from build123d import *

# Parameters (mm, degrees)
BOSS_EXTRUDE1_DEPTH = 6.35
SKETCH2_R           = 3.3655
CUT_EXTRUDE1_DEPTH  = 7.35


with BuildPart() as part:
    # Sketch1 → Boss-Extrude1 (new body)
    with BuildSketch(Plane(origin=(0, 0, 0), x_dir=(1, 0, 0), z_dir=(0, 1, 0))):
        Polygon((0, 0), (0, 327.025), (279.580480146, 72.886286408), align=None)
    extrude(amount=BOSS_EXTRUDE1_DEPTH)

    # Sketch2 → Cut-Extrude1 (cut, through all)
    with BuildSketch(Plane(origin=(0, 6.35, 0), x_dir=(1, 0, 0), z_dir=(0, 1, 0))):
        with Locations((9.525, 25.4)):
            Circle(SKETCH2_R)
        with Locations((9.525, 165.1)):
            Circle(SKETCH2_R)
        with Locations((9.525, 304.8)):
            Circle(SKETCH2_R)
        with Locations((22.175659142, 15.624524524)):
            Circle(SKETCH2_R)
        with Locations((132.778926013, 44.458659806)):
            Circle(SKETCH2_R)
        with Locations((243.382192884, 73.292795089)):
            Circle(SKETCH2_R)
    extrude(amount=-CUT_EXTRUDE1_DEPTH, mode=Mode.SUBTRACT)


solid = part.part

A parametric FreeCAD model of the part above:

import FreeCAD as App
import Part
import Sketcher

V = App.Vector
Q = App.Units.Quantity

doc = App.newDocument("Part")
body = doc.addObject("PartDesign::Body", "Body")

# Sketch on XZ plane
sketch1 = doc.addObject("Sketcher::SketchObject", "Sketch")
body.addObject(sketch1)
sketch1.AttachmentSupport = (doc.XZ_Plane, [""])
sketch1.MapMode = "FlatFace"
sketch1.addGeometry([
    Part.LineSegment(V(0, -327, 0), V(0, 0, 0)),
    Part.LineSegment(V(0, 0, 0), V(280, -73, 0)),
    Part.LineSegment(V(280, -73, 0), V(0, -327, 0)),
], False)
sketch1.addConstraint([
    Sketcher.Constraint("Coincident", 0, 2, 1, 1),
    Sketcher.Constraint("Coincident", 1, 2, 2, 1),
    Sketcher.Constraint("Coincident", 2, 2, 0, 1),
    Sketcher.Constraint("Vertical", 0),
    Sketcher.Constraint("Coincident", 0, 2, -1, 1),
    Sketcher.Constraint("DistanceY", 0, 1, 0, 2, Q("12.875 in")),
    Sketcher.Constraint("Distance", 1, Q("11.375 in")),
    Sketcher.Constraint("Distance", 2, Q("14.875 in")),
])
pad1 = doc.addObject("PartDesign::Pad", "Pad")
body.addObject(pad1)
pad1.Profile = sketch1
pad1.Length = Q("0.25 in")
pad1.Reversed = True

# Sketch on XZ plane
sketch2 = doc.addObject("Sketcher::SketchObject", "Sketch001")
body.addObject(sketch2)
sketch2.AttachmentSupport = (doc.XZ_Plane, [""])
sketch2.MapMode = "FlatFace"
sketch2.AttachmentOffset = App.Placement(V(0, 0, -0.25 * 25.4), App.Rotation())
sketch2.addGeometry([
    Part.Circle(V(9.5, -25.4, 0), V(0, 0, 1), 3.4),  # 0
    Part.Circle(V(9.5, -165.1, 0), V(0, 0, 1), 3.4),  # 1
    Part.Circle(V(9.5, -304.8, 0), V(0, 0, 1), 3.4),  # 2
    Part.Circle(V(22.2, -15.6, 0), V(0, 0, 1), 3.4),  # 3
    Part.Circle(V(132.8, -44.5, 0), V(0, 0, 1), 3.4),  # 4
    Part.Circle(V(243.4, -73.3, 0), V(0, 0, 1), 3.4),  # 5
], False)
sketch2.addConstraint([
    Sketcher.Constraint("Equal", 0, 1),
    Sketcher.Constraint("Equal", 1, 2),
    Sketcher.Constraint("Equal", 2, 3),
    Sketcher.Constraint("Equal", 3, 4),
    Sketcher.Constraint("Equal", 4, 5),
    Sketcher.Constraint("Vertical", 0, 3, 1, 3),
    Sketcher.Constraint("Vertical", 1, 3, 2, 3),
    Sketcher.Constraint("Diameter", 0, Q("0.265 in")),
    Sketcher.Constraint("DistanceY", 0, 3, -1, 1, Q("1 in")),
    Sketcher.Constraint("DistanceY", 2, 3, -1, 1, Q("12 in")),
    Sketcher.Constraint("DistanceY", 1, 3, -1, 1, Q("6.5 in")),
    Sketcher.Constraint("DistanceX", -1, 1, 0, 3, Q("0.375 in")),
    Sketcher.Constraint("DistanceX", -1, 1, 3, 3, 22.175659),
    Sketcher.Constraint("DistanceY", 4, 3, -1, 1, 44.45866),
    Sketcher.Constraint("DistanceY", 5, 3, 3, 3, 57.668271),
    Sketcher.Constraint("DistanceY", 3, 3, -1, 1, 15.624525),
    Sketcher.Constraint("DistanceX", -1, 1, 4, 3, 132.778926),
    Sketcher.Constraint("DistanceX", -1, 1, 5, 3, 243.382193),
])
pocket1 = doc.addObject("PartDesign::Pocket", "Pocket")
body.addObject(pocket1)
pocket1.Profile = sketch2
pocket1.Type = "ThroughAll"
pocket1.Reversed = True

doc.recompute()
